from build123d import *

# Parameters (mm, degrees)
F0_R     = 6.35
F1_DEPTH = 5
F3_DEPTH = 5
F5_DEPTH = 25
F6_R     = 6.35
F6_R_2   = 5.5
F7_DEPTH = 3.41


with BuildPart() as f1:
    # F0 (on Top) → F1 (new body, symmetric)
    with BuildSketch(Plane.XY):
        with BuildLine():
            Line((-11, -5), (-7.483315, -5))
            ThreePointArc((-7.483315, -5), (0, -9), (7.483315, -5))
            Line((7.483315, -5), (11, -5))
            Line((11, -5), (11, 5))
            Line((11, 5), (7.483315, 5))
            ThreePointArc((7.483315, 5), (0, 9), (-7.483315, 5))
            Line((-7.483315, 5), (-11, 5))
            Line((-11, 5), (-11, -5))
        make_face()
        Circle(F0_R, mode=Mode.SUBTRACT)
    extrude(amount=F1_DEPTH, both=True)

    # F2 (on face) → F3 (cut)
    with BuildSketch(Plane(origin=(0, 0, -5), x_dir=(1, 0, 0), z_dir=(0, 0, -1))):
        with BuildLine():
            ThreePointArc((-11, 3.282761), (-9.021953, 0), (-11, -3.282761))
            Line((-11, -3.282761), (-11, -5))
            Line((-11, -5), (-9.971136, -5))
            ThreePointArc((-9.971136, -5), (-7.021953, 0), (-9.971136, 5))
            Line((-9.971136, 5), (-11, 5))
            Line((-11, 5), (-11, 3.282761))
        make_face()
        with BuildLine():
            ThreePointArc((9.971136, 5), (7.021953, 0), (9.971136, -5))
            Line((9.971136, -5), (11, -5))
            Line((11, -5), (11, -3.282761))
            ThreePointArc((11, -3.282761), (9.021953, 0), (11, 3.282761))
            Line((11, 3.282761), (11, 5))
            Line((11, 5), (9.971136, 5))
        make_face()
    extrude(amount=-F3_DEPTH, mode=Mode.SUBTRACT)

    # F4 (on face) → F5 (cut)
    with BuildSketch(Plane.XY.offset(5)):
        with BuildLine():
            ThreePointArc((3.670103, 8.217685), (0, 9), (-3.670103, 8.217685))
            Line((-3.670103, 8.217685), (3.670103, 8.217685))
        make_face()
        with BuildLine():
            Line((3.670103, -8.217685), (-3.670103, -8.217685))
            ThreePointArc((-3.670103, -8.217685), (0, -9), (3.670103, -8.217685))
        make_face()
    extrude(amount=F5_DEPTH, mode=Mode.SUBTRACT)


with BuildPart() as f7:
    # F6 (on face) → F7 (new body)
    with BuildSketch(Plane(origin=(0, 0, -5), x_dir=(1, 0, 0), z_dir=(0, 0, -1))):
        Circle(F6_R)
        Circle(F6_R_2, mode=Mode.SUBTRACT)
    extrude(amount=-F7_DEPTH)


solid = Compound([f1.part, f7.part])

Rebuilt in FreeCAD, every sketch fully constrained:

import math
import FreeCAD as App
import Part
import Sketcher
from FreeCAD import Vector
Q = App.Units.Quantity

doc = App.newDocument("Part")
params = doc.addObject("Spreadsheet::Sheet", "Params")
for row, (alias, value) in enumerate([
    ("sketch1_radius", "9 mm"),
    ("sketch1_diameter", "12.7 mm"),
    ("sketch1_height", "10 mm"),
    ("pad1_length", "10 mm"),
    ("pocket1_length", "5 mm"),
    ("sketch3_radius", "9.000002 mm"),
    ("pocket2_length", "25 mm"),
    ("sketch4_diameter", "11 mm"),
    ("sketch4_diameter2", "12.7 mm"),
    ("pad2_length", "3.41 mm"),
], start=1):
    params.set(f"A{row}", alias)
    params.set(f"B{row}", "=" + value)
    params.setAlias(f"B{row}", alias)

body = doc.addObject("PartDesign::Body", "Body")

# Sketch on XY plane
sketch1 = body.newObject("Sketcher::SketchObject", "Sketch")
sketch1.AttachmentSupport = (doc.getObject("XY_Plane"), [""])
sketch1.MapMode = "FlatFace"
sketch1.addGeometry([
    Part.LineSegment(Vector(-11, -5, 0), Vector(-7.5, -5, 0)),  # 0
    Part.ArcOfCircle(Part.Circle(Vector(0, 0, 0), Vector(0, 0, 1), 9), math.radians(-146), math.radians(-34)),  # 1
    Part.LineSegment(Vector(7.5, -5, 0), Vector(11, -5, 0)),  # 2
    Part.LineSegment(Vector(11, -5, 0), Vector(11, 5, 0)),  # 3
    Part.LineSegment(Vector(11, 5, 0), Vector(7.5, 5, 0)),  # 4
    Part.ArcOfCircle(Part.Circle(Vector(0, 0, 0), Vector(0, 0, 1), 9), math.radians(34), math.radians(146)),  # 5
    Part.LineSegment(Vector(-7.5, 5, 0), Vector(-11, 5, 0)),  # 6
    Part.LineSegment(Vector(-11, 5, 0), Vector(-11, -5, 0)),  # 7
    Part.Circle(Vector(0, 0, 0), Vector(0, 0, 1), 6.3),  # 8
], False)
sketch1.addConstraint([
    Sketcher.Constraint("Coincident", 0, 2, 1, 1),
    Sketcher.Constraint("Coincident", 1, 2, 2, 1),
    Sketcher.Constraint("Coincident", 2, 2, 3, 1),
    Sketcher.Constraint("Coincident", 3, 2, 4, 1),
    Sketcher.Constraint("Coincident", 4, 2, 5, 1),
    Sketcher.Constraint("Coincident", 5, 2, 6, 1),
    Sketcher.Constraint("Coincident", 6, 2, 7, 1),
    Sketcher.Constraint("Coincident", 7, 2, 0, 1),
    Sketcher.Constraint("Horizontal", 0),
    Sketcher.Constraint("Horizontal", 2),
    Sketcher.Constraint("Vertical", 3),
    Sketcher.Constraint("Horizontal", 4),
    Sketcher.Constraint("Horizontal", 6),
    Sketcher.Constraint("Vertical", 7),
    Sketcher.Constraint("Coincident", 1, 3, -1, 1),
    Sketcher.Constraint("Coincident", 5, 3, -1, 1),
    Sketcher.Constraint("Coincident", 8, 3, -1, 1),
    Sketcher.Constraint("Equal", 1, 5),
    Sketcher.Constraint("Symmetric", 2, 2, 6, 2, -1, 1),
    Sketcher.Constraint("Horizontal", 0, 2, 1, 2),
    Sketcher.Constraint("Horizontal", 4, 2, 5, 2),
    Sketcher.Constraint("Radius", 1, Q("9 mm")),
    Sketcher.Constraint("Diameter", 8, Q("12.7 mm")),
    Sketcher.Constraint("DistanceY", 3, 1, 3, 2, Q("10 mm")),
    Sketcher.Constraint("DistanceX", -1, 1, 2, 2, Q("11 mm")),
])
sketch1.setExpression("Constraints[21]", "Params.sketch1_radius")
sketch1.setExpression("Constraints[22]", "Params.sketch1_diameter")
sketch1.setExpression("Constraints[23]", "Params.sketch1_height")
pad1 = body.newObject("PartDesign::Pad", "Pad")
pad1.Profile = sketch1
pad1.setExpression("Length", "Params.pad1_length")
pad1.Midplane = True

# Sketch on XY plane
sketch2 = body.newObject("Sketcher::SketchObject", "Sketch001")
sketch2.AttachmentSupport = (doc.getObject("XY_Plane"), [""])
sketch2.MapMode = "FlatFace"
sketch2.AttachmentOffset = App.Placement(Vector(0, 0, -5), App.Rotation())
sketch2.addGeometry([
    Part.ArcOfCircle(Part.Circle(Vector(-12.7, 0, 0), Vector(0, 0, 1), 3.7), math.radians(-62), math.radians(62)),  # 0
    Part.LineSegment(Vector(-11, 3.3, 0), Vector(-11, 5, 0)),  # 1
    Part.LineSegment(Vector(-11, 5, 0), Vector(-10, 5, 0)),  # 2
    Part.ArcOfCircle(Part.Circle(Vector(-12.7, 0, 0), Vector(0, 0, 1), 5.7), math.radians(-61), math.radians(61)),  # 3
    Part.LineSegment(Vector(-10, -5, 0), Vector(-11, -5, 0)),  # 4
    Part.LineSegment(Vector(-11, -5, 0), Vector(-11, -3.3, 0)),  # 5
    Part.ArcOfCircle(Part.Circle(Vector(12.7, 0, 0), Vector(0, 0, 1), 5.7), math.radians(119), math.radians(241)),  # 6
    Part.LineSegment(Vector(10, 5, 0), Vector(11, 5, 0)),  # 7
    Part.LineSegment(Vector(11, 5, 0), Vector(11, 3.3, 0)),  # 8
    Part.ArcOfCircle(Part.Circle(Vector(12.7, 0, 0), Vector(0, 0, 1), 3.7), math.radians(118), math.radians(242)),  # 9
    Part.LineSegment(Vector(11, -3.3, 0), Vector(11, -5, 0)),  # 10
    Part.LineSegment(Vector(11, -5, 0), Vector(10, -5, 0)),  # 11
], False)
sketch2.addConstraint([
    Sketcher.Constraint("Coincident", 0, 2, 1, 1),
    Sketcher.Constraint("Coincident", 1, 2, 2, 1),
    Sketcher.Constraint("Coincident", 2, 2, 3, 2),
    Sketcher.Constraint("Coincident", 3, 1, 4, 1),
    Sketcher.Constraint("Coincident", 4, 2, 5, 1),
    Sketcher.Constraint("Coincident", 5, 2, 0, 1),
    Sketcher.Constraint("Coincident", 6, 1, 7, 1),
    Sketcher.Constraint("Coincident", 7, 2, 8, 1),
    Sketcher.Constraint("Coincident", 8, 2, 9, 1),
    Sketcher.Constraint("Coincident", 9, 2, 10, 1),
    Sketcher.Constraint("Coincident", 10, 2, 11, 1),
    Sketcher.Constraint("Coincident", 11, 2, 6, 2),
    Sketcher.Constraint("Vertical", 1),
    Sketcher.Constraint("Horizontal", 2),
    Sketcher.Constraint("Horizontal", 4),
    Sketcher.Constraint("Vertical", 5),
    Sketcher.Constraint("Horizontal", 7),
    Sketcher.Constraint("Vertical", 8),
    Sketcher.Constraint("Vertical", 10),
    Sketcher.Constraint("Horizontal", 11),
    Sketcher.Constraint("Coincident", 3, 3, 0, 3),
    Sketcher.Constraint("Coincident", 9, 3, 6, 3),
    Sketcher.Constraint("Equal", 3, 6),
    Sketcher.Constraint("Equal", 0, 9),
    Sketcher.Constraint("Symmetric", 0, 3, 6, 3, -1, 1),
    Sketcher.Constraint("Symmetric", 4, 2, 7, 2, -1, 1),
    Sketcher.Constraint("Symmetric", 1, 2, 10, 2, -1, 1),
    Sketcher.Constraint("Symmetric", 2, 2, 6, 1, -2),
    Sketcher.Constraint("Horizontal", 0, 2, 8, 2),
    Sketcher.Constraint("DistanceX", 0, 2, -1, 1, Q("11 mm")),
    Sketcher.Constraint("DistanceY", -1, 1, 1, 2, Q("5 mm")),
    Sketcher.Constraint("Radius", 0, Q("3.713054 mm")),
    Sketcher.Constraint("Radius", 3, Q("5.713053 mm")),
    Sketcher.Constraint("DistanceY", 1, 1, 1, 2, Q("1.717239 mm")),
])
pocket1 = body.newObject("PartDesign::Pocket", "Pocket")
pocket1.Profile = sketch2
pocket1.setExpression("Length", "Params.pocket1_length")
pocket1.Reversed = True

# Sketch on XY plane
sketch3 = body.newObject("Sketcher::SketchObject", "Sketch002")
sketch3.AttachmentSupport = (doc.getObject("XY_Plane"), [""])
sketch3.MapMode = "FlatFace"
sketch3.AttachmentOffset = App.Placement(Vector(0, 0, 5), App.Rotation())
sketch3.addGeometry([
    Part.ArcOfCircle(Part.Circle(Vector(0, 0, 0), Vector(0, 0, 1), 9), math.radians(66), math.radians(114)),
    Part.LineSegment(Vector(-4, 8, 0), Vector(4, 8, 0)),
    Part.LineSegment(Vector(4, -8, 0), Vector(-4, -8, 0)),
    Part.ArcOfCircle(Part.Circle(Vector(0, 0, 0), Vector(0, 0, 1), 9), math.radians(-114), math.radians(-66)),
], False)
sketch3.addConstraint([
    Sketcher.Constraint("Coincident", 0, 1, 1, 2),
    Sketcher.Constraint("Coincident", 1, 1, 0, 2),
    Sketcher.Constraint("Coincident", 2, 1, 3, 2),
    Sketcher.Constraint("Coincident", 3, 1, 2, 2),
    Sketcher.Constraint("Horizontal", 1),
    Sketcher.Constraint("Horizontal", 2),
    Sketcher.Constraint("Coincident", 0, 3, -1, 1),
    Sketcher.Constraint("Coincident", 3, 3, -1, 1),
    Sketcher.Constraint("Equal", 0, 3),
    Sketcher.Constraint("Vertical", 0, 1, 2, 1),
    Sketcher.Constraint("Radius", 0, Q("9.000002 mm")),
    Sketcher.Constraint("DistanceX", 1, 1, 1, 2, Q("7.340206 mm")),
])
sketch3.setExpression("Constraints[10]", "Params.sketch3_radius")
pocket2 = body.newObject("PartDesign::Pocket", "Pocket001")
pocket2.Profile = sketch3
pocket2.setExpression("Length", "Params.pocket2_length")
pocket2.Reversed = True
body2 = doc.addObject("PartDesign::Body", "Body001")

# Sketch on XY plane
sketch4 = body2.newObject("Sketcher::SketchObject", "Sketch003")
sketch4.AttachmentSupport = (doc.getObject("XY_Plane001"), [""])
sketch4.MapMode = "FlatFace"
sketch4.AttachmentOffset = App.Placement(Vector(0, 0, -5), App.Rotation())
sketch4.addGeometry([
    Part.Circle(Vector(0, 0, 0), Vector(0, 0, 1), 6),
    Part.Circle(Vector(0, 0, 0), Vector(0, 0, 1), 6),
], False)
sketch4.addConstraint([
    Sketcher.Constraint("Coincident", 0, 3, -1, 1),
    Sketcher.Constraint("Coincident", 1, 3, -1, 1),
    Sketcher.Constraint("Diameter", 1, Q("11 mm")),
    Sketcher.Constraint("Diameter", 0, Q("12.7 mm")),
])
sketch4.setExpression("Constraints[2]", "Params.sketch4_diameter")
sketch4.setExpression("Constraints[3]", "Params.sketch4_diameter2")
pad2 = body2.newObject("PartDesign::Pad", "Pad001")
pad2.Profile = sketch4
pad2.setExpression("Length", "Params.pad2_length")

doc.recompute()
